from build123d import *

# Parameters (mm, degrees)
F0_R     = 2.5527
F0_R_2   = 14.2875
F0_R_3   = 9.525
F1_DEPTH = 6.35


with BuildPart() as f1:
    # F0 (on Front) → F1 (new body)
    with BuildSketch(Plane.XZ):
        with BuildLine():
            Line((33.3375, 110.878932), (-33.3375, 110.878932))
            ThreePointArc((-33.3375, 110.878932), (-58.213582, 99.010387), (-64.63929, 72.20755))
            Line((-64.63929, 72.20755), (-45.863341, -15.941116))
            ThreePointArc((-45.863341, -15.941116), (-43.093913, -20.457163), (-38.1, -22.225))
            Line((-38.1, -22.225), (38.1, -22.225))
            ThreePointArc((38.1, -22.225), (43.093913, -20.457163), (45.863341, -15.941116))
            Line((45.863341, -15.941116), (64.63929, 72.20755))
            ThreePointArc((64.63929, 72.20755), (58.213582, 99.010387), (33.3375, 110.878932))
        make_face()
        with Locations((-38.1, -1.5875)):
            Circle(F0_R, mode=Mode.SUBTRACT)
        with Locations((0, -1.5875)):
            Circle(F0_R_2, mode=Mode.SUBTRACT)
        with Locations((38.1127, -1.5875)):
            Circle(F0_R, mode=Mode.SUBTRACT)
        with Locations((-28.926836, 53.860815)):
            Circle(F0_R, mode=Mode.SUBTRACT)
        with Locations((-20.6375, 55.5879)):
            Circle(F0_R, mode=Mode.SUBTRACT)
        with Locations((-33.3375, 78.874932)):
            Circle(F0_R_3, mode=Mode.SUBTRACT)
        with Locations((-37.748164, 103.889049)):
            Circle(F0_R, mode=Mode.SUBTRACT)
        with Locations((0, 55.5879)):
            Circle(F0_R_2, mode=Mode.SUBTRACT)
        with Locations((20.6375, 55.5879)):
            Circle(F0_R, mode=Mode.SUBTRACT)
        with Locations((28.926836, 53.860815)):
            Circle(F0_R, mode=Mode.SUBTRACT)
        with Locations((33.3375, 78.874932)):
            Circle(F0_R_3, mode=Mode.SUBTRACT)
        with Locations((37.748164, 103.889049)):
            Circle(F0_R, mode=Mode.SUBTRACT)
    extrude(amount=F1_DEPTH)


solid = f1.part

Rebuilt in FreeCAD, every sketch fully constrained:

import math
import FreeCAD as App
import Part
import Sketcher

V = App.Vector
Q = App.Units.Quantity

doc = App.newDocument("Part")
body = doc.addObject("PartDesign::Body", "Body")

# Sketch on XZ plane
sketch1 = body.newObject("Sketcher::SketchObject", "Sketch")
sketch1.AttachmentSupport = (doc.getObject("XZ_Plane"), [""])
sketch1.MapMode = "FlatFace"
sketch1.addGeometry(Part.LineSegment(V(33.3, 110.9, 0), V(-33.3, 110.9, 0)), False)
sketch1.addGeometry(Part.ArcOfCircle(Part.Circle(V(-33.3, 78.9, 0), V(0, 0, 1), 32), math.radians(90), math.radians(192)), False)
sketch1.addGeometry(Part.LineSegment(V(-64.6, 72.2, 0), V(-45.9, -15.9, 0)), False)
sketch1.addGeometry(Part.ArcOfCircle(Part.Circle(V(-38.1, -14.3, 0), V(0, 0, 1), 7.9), math.radians(-168), math.radians(-90)), False)
sketch1.addGeometry(Part.LineSegment(V(-38.1, -22.2, 0), V(38.1, -22.2, 0)), False)
sketch1.addGeometry(Part.ArcOfCircle(Part.Circle(V(38.1, -14.3, 0), V(0, 0, 1), 7.9), math.radians(-90), math.radians(-12)), False)
sketch1.addGeometry(Part.LineSegment(V(45.9, -15.9, 0), V(64.6, 72.2, 0)), False)
sketch1.addGeometry(Part.ArcOfCircle(Part.Circle(V(33.3, 78.9, 0), V(0, 0, 1), 32), math.radians(-12), math.radians(90)), False)
sketch1.addGeometry(Part.Circle(V(-38.1, -1.6, 0), V(0, 0, 1), 2.6), False)
sketch1.addGeometry(Part.Circle(V(0, -1.6, 0), V(0, 0, 1), 14.3), False)
sketch1.addGeometry(Part.Circle(V(38.1, -1.6, 0), V(0, 0, 1), 2.6), False)
sketch1.addGeometry(Part.Circle(V(-28.9, 53.9, 0), V(0, 0, 1), 2.6), False)
sketch1.addGeometry(Part.Circle(V(-20.6, 55.6, 0), V(0, 0, 1), 2.6), False)
sketch1.addGeometry(Part.Circle(V(-33.3, 78.9, 0), V(0, 0, 1), 9.5), False)
sketch1.addGeometry(Part.Circle(V(-37.7, 103.9, 0), V(0, 0, 1), 2.6), False)
sketch1.addGeometry(Part.Circle(V(0, 55.6, 0), V(0, 0, 1), 14.3), False)
sketch1.addGeometry(Part.Circle(V(20.6, 55.6, 0), V(0, 0, 1), 2.6), False)
sketch1.addGeometry(Part.Circle(V(28.9, 53.9, 0), V(0, 0, 1), 2.6), False)
sketch1.addGeometry(Part.Circle(V(33.3, 78.9, 0), V(0, 0, 1), 9.5), False)
sketch1.addGeometry(Part.Circle(V(37.7, 103.9, 0), V(0, 0, 1), 2.6), False)
sketch1.addConstraint(Sketcher.Constraint("Tangent", 0, 2, 1, 1))
sketch1.addConstraint(Sketcher.Constraint("Tangent", 1, 2, 2, 1))
sketch1.addConstraint(Sketcher.Constraint("Tangent", 2, 2, 3, 1))
sketch1.addConstraint(Sketcher.Constraint("Tangent", 3, 2, 4, 1))
sketch1.addConstraint(Sketcher.Constraint("Tangent", 4, 2, 5, 1))
sketch1.addConstraint(Sketcher.Constraint("Tangent", 5, 2, 6, 1))
sketch1.addConstraint(Sketcher.Constraint("Tangent", 6, 2, 7, 1))
sketch1.addConstraint(Sketcher.Constraint("Tangent", 7, 2, 0, 1))
sketch1.addConstraint(Sketcher.Constraint("Horizontal", 0))
sketch1.addConstraint(Sketcher.Constraint("Horizontal", 4))
sketch1.addConstraint(Sketcher.Constraint("Coincident", 13, 3, 1, 3))
sketch1.addConstraint(Sketcher.Constraint("Coincident", 18, 3, 7, 3))
sketch1.addConstraint(Sketcher.Constraint("Equal", 3, 5))
sketch1.addConstraint(Sketcher.Constraint("Equal", 1, 7))
sketch1.addConstraint(Sketcher.Constraint("Equal", 8, 10))
sketch1.addConstraint(Sketcher.Constraint("Equal", 10, 11))
sketch1.addConstraint(Sketcher.Constraint("Equal", 11, 12))
sketch1.addConstraint(Sketcher.Constraint("Equal", 12, 14))
sketch1.addConstraint(Sketcher.Constraint("Equal", 9, 15))
sketch1.addConstraint(Sketcher.Constraint("Equal", 14, 16))
sketch1.addConstraint(Sketcher.Constraint("Equal", 16, 17))
sketch1.addConstraint(Sketcher.Constraint("Equal", 13, 18))
sketch1.addConstraint(Sketcher.Constraint("Equal", 17, 19))
sketch1.addConstraint(Sketcher.Constraint("Symmetric", 12, 3, 16, 3, -2))
sketch1.addConstraint(Sketcher.Constraint("Symmetric", 11, 3, 17, 3, -2))
sketch1.addConstraint(Sketcher.Constraint("Symmetric", 14, 3, 19, 3, -2))
sketch1.addConstraint(Sketcher.Constraint("Symmetric", 2, 2, 5, 2, -2))
sketch1.addConstraint(Sketcher.Constraint("PointOnObject", 9, 3, -2))
sketch1.addConstraint(Sketcher.Constraint("PointOnObject", 15, 3, -2))
sketch1.addConstraint(Sketcher.Constraint("Horizontal", 8, 3, 9, 3))
sketch1.addConstraint(Sketcher.Constraint("Horizontal", 9, 3, 10, 3))
sketch1.addConstraint(Sketcher.Constraint("Horizontal", 12, 3, 15, 3))
sketch1.addConstraint(Sketcher.Constraint("Vertical", 3, 3, 8, 3))
sketch1.addConstraint(Sketcher.Constraint("Diameter", 13, Q("0.75 in")))
sketch1.addConstraint(Sketcher.Constraint("DistanceX", 4, 1, 4, 2, Q("3 in")))
sketch1.addConstraint(Sketcher.Constraint("Radius", 1, Q("1.26 in")))
sketch1.addConstraint(Sketcher.Constraint("Diameter", 8, Q("0.201 in")))
sketch1.addConstraint(Sketcher.Constraint("Diameter", 9, Q("1.125 in")))
sketch1.addConstraint(Sketcher.Constraint("Radius", 3, Q("0.3125 in")))
sketch1.addConstraint(Sketcher.Constraint("DistanceY", 3, 3, 8, 3, Q("0.5 in")))
sketch1.addConstraint(Sketcher.Constraint("DistanceX", 1, 3, 12, 3, Q("0.5 in")))
sketch1.addConstraint(Sketcher.Constraint("DistanceX", 0, 2, 0, 1, Q("2.625 in")))
sketch1.addConstraint(Sketcher.Constraint("DistanceY", 3, 3, -1, 1, Q("0.5625 in")))
sketch1.addConstraint(Sketcher.Constraint("DistanceX", 7, 3, 10, 3, Q("0.188 in")))
sketch1.addConstraint(Sketcher.Constraint("DistanceY", 8, 3, 12, 3, Q("2.251 in")))
sketch1.addConstraint(Sketcher.Constraint("DistanceY", 1, 2, 14, 3, Q("31.681499 mm")))
sketch1.addConstraint(Sketcher.Constraint("DistanceY", -1, 1, 1, 3, Q("78.874931 mm")))
sketch1.addConstraint(Sketcher.Constraint("DistanceX", 14, 3, 11, 3, Q("8.821328 mm")))
sketch1.addConstraint(Sketcher.Constraint("DistanceY", 2, 2, 11, 3, Q("69.801931 mm")))
sketch1.addConstraint(Sketcher.Constraint("DistanceX", 11, 3, -1, 1, Q("28.926836 mm")))
pad1 = body.newObject("PartDesign::Pad", "Pad")
pad1.Profile = sketch1
pad1.Length = Q("0.25 in")

doc.recompute()
